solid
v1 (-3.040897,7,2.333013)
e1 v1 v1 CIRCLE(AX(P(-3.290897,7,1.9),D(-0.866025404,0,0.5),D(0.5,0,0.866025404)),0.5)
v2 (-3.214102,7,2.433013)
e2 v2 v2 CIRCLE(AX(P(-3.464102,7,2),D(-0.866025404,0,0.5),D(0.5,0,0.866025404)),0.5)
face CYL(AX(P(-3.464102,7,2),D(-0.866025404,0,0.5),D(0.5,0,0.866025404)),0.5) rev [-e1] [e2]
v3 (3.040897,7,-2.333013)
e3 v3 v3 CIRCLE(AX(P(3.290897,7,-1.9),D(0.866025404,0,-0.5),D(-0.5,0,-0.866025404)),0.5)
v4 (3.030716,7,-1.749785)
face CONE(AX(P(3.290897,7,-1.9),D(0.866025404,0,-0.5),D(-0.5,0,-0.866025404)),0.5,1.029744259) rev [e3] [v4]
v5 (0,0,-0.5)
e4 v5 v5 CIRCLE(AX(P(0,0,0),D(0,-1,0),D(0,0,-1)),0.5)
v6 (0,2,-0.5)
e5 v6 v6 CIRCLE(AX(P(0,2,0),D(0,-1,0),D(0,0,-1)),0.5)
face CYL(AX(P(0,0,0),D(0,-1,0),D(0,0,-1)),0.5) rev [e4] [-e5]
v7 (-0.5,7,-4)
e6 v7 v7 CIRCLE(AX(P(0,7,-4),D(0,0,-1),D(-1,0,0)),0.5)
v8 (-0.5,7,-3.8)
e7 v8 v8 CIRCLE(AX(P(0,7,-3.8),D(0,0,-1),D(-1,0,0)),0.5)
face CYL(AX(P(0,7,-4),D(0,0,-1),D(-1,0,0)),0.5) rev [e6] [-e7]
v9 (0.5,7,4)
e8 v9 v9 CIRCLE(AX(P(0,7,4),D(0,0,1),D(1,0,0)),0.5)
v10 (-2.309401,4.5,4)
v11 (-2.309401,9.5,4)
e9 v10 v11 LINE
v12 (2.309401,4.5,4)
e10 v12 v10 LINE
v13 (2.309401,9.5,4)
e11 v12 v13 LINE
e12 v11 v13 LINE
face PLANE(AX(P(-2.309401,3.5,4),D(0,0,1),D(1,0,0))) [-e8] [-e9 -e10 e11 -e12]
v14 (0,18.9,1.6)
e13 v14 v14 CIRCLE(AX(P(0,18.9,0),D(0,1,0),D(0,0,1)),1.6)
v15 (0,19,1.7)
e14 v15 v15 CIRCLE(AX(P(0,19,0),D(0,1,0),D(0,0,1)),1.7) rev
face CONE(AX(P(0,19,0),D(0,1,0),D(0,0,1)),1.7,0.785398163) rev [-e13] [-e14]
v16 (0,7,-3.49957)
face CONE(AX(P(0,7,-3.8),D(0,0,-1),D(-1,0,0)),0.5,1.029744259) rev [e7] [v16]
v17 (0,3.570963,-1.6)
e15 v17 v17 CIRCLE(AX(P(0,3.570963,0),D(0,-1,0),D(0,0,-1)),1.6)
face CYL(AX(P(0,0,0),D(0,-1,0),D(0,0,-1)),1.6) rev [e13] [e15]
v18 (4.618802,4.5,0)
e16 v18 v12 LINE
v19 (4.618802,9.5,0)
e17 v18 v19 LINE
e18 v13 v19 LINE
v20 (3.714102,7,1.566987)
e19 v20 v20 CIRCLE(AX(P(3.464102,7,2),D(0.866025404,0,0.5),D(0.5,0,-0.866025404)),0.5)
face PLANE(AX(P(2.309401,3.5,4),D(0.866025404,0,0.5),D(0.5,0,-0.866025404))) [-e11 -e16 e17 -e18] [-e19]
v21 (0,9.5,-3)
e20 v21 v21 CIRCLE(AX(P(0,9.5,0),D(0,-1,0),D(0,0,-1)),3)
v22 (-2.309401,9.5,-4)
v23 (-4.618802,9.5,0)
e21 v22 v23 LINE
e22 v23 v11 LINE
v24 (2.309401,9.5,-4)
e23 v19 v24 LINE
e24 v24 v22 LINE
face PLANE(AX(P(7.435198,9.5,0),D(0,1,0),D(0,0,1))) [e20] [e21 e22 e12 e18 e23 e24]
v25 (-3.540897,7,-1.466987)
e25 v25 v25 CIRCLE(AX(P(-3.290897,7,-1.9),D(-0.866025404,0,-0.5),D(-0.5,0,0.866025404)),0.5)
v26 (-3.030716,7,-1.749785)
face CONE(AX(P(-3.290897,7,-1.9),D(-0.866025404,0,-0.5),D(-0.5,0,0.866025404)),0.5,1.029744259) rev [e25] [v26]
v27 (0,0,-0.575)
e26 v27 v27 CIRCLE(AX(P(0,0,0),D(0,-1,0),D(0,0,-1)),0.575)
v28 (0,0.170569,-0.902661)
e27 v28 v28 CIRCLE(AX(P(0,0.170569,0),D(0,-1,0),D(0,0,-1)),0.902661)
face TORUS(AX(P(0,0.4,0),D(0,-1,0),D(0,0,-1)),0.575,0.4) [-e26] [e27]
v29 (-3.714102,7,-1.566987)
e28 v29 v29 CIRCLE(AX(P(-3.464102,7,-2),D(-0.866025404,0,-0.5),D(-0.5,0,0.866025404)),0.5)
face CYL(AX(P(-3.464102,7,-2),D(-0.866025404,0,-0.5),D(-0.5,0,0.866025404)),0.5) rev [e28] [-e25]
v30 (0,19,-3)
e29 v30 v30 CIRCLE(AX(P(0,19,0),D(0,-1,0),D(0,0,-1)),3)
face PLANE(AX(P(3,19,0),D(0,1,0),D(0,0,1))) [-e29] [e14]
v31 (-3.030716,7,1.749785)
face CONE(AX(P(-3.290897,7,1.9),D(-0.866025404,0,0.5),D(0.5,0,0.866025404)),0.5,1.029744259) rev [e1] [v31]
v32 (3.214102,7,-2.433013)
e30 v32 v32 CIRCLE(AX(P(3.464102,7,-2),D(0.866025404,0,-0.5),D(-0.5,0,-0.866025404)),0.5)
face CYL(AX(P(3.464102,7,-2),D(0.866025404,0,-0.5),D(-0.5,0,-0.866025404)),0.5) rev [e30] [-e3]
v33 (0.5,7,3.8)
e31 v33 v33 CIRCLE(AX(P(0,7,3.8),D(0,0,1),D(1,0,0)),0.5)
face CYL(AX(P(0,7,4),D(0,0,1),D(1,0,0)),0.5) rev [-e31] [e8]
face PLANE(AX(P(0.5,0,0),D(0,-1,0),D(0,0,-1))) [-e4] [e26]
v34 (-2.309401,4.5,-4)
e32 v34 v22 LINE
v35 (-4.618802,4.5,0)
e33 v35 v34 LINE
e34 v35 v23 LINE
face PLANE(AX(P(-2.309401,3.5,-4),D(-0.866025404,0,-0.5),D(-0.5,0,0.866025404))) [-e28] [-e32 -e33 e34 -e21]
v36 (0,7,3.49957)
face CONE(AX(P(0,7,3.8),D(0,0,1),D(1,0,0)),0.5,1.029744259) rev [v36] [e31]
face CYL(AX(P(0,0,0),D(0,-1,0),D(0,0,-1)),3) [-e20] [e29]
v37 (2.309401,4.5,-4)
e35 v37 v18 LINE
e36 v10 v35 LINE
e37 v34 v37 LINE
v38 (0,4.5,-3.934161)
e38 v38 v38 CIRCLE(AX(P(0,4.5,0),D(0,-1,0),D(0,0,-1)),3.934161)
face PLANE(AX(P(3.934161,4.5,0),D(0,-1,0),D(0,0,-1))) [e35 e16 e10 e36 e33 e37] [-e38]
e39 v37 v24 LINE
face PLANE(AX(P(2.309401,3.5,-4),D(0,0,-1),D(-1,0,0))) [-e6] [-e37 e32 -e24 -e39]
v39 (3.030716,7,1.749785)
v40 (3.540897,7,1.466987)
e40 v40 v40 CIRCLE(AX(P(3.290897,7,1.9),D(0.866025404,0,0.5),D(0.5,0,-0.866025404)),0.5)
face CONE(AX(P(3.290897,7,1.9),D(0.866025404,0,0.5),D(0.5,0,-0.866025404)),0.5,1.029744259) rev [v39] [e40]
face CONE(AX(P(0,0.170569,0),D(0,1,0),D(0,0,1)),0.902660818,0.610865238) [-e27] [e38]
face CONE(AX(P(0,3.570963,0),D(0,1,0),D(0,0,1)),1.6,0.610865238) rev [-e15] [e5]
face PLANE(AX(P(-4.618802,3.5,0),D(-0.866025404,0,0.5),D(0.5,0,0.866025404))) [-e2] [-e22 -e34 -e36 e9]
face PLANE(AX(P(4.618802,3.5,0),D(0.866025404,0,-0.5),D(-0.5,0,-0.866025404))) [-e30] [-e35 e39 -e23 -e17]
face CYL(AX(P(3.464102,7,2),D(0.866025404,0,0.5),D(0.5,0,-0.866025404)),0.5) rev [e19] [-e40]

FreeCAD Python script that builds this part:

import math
import FreeCAD as App
import Part
import Sketcher
from FreeCAD import Vector
Q = App.Units.Quantity


def edges_at(feature, points):
    """Names of the edges that pass closest to the given points."""
    edges = feature.Shape.Edges
    near = lambda p: min(range(len(edges)), key=lambda i: edges[i].distToShape(Part.Vertex(*p))[0])
    return sorted({f"Edge{near(p) + 1}" for p in points})

doc = App.newDocument("Part")
body = doc.addObject("PartDesign::Body", "Body")

# Sketch on XY plane
sketch1 = doc.addObject("Sketcher::SketchObject", "Sketch")
body.addObject(sketch1)
sketch1.AttachmentSupport = (doc.XY_Plane, [""])
sketch1.MapMode = "FlatFace"
sketch1.addGeometry([
    Part.LineSegment(Vector(0.5, 0, 0), Vector(0.575, 0, 0)),  # 0
    Part.ArcOfCircle(Part.Circle(Vector(0.575, 0.4, 0), Vector(0, 0, 1), 0.4), math.radians(-90), math.radians(-35)),  # 1
    Part.LineSegment(Vector(0.902661, 0.170569, 0), Vector(3.934161, 4.5, 0)),  # 2
    Part.LineSegment(Vector(3.934161, 4.5, 0), Vector(6.640586, 4.5, 0)),  # 3
    Part.LineSegment(Vector(6.640586, 4.5, 0), Vector(6.640586, 8.365176, 0)),  # 4
    Part.LineSegment(Vector(6.640586, 8.365176, 0), Vector(7.435198, 9.5, 0)),  # 5
    Part.LineSegment(Vector(7.435198, 9.5, 0), Vector(3, 9.5, 0)),  # 6
    Part.LineSegment(Vector(3, 9.5, 0), Vector(3, 19, 0)),  # 7
    Part.LineSegment(Vector(3, 19, 0), Vector(1.6, 19, 0)),  # 8
    Part.LineSegment(Vector(1.6, 19, 0), Vector(1.6, 3.570963, 0)),  # 9
    Part.LineSegment(Vector(1.6, 3.570963, 0), Vector(0.5, 2, 0)),  # 10
    Part.LineSegment(Vector(0.5, 2, 0), Vector(0.5, 0, 0)),  # 11
], False)
sketch1.addConstraint([
    Sketcher.Constraint("Tangent", 0, 2, 1, 1),
    Sketcher.Constraint("Tangent", 1, 2, 2, 1),
    Sketcher.Constraint("Coincident", 2, 2, 3, 1),
    Sketcher.Constraint("Coincident", 3, 2, 4, 1),
    Sketcher.Constraint("Coincident", 4, 2, 5, 1),
    Sketcher.Constraint("Coincident", 5, 2, 6, 1),
    Sketcher.Constraint("Coincident", 6, 2, 7, 1),
    Sketcher.Constraint("Coincident", 7, 2, 8, 1),
    Sketcher.Constraint("Coincident", 8, 2, 9, 1),
    Sketcher.Constraint("Coincident", 9, 2, 10, 1),
    Sketcher.Constraint("Coincident", 10, 2, 11, 1),
    Sketcher.Constraint("Coincident", 11, 2, 0, 1),
    Sketcher.Constraint("Horizontal", 0),
    Sketcher.Constraint("Horizontal", 3),
    Sketcher.Constraint("Vertical", 4),
    Sketcher.Constraint("Horizontal", 6),
    Sketcher.Constraint("Vertical", 7),
    Sketcher.Constraint("Horizontal", 8),
    Sketcher.Constraint("Vertical", 9),
    Sketcher.Constraint("Vertical", 11),
    Sketcher.Constraint("PointOnObject", 0, 2, -1),
    Sketcher.Constraint("Parallel", 2, 5),
    Sketcher.Constraint("Parallel", 5, 10),
    Sketcher.Constraint("Radius", 1, Q("0.4 mm")),
    Sketcher.Constraint("DistanceY", 11, 2, 11, 1, Q("2 mm")),
    Sketcher.Constraint("Angle", 2, Q("55 deg")),
    Sketcher.Constraint("DistanceX", 8, 2, 8, 1, Q("1.4 mm")),
    Sketcher.Constraint("DistanceY", 7, 1, 7, 2, Q("9.5 mm")),
    Sketcher.Constraint("DistanceX", -1, 1, 6, 2, Q("3 mm")),
    Sketcher.Constraint("DistanceY", -1, 1, 7, 2, Q("19 mm")),
    Sketcher.Constraint("DistanceY", 3, 2, 5, 2, Q("5 mm")),
    Sketcher.Constraint("DistanceX", -1, 1, 10, 2, Q("0.5 mm")),
    Sketcher.Constraint("DistanceX", 0, 1, 0, 2, Q("0.075 mm")),
    Sketcher.Constraint("DistanceX", 6, 2, 6, 1, Q("4.435198 mm")),
    Sketcher.Constraint("DistanceX", 3, 1, 3, 2, Q("2.706426 mm")),
])
revolution = doc.addObject("PartDesign::Revolution", "Revolution")
body.addObject(revolution)
revolution.Profile = sketch1
revolution.ReferenceAxis = (sketch1, ["V_Axis"])
revolution.Angle = 360

# Sketch on XZ plane
sketch2 = doc.addObject("Sketcher::SketchObject", "Sketch001")
body.addObject(sketch2)
sketch2.AttachmentSupport = (doc.XZ_Plane, [""])
sketch2.MapMode = "FlatFace"
sketch2.AttachmentOffset = App.Placement(Vector(0, 0, -10.5), App.Rotation())
sketch2.addGeometry([
    Part.Circle(Vector(0, 0, 0), Vector(0, 0, 1), 7.435198),  # 0
    Part.LineSegment(Vector(-2.309401, -4, 0), Vector(2.309401, -4, 0)),  # 1
    Part.LineSegment(Vector(2.309401, -4, 0), Vector(4.618802, 0, 0)),  # 2
    Part.LineSegment(Vector(4.618802, 0, 0), Vector(2.309401, 4, 0)),  # 3
    Part.LineSegment(Vector(2.309401, 4, 0), Vector(-2.309401, 4, 0)),  # 4
    Part.LineSegment(Vector(-2.309401, 4, 0), Vector(-4.618802, 0, 0)),  # 5
    Part.LineSegment(Vector(-4.618802, 0, 0), Vector(-2.309401, -4, 0)),  # 6
], False)
sketch2.addConstraint([
    Sketcher.Constraint("Coincident", 1, 2, 2, 1),
    Sketcher.Constraint("Coincident", 2, 2, 3, 1),
    Sketcher.Constraint("Coincident", 3, 2, 4, 1),
    Sketcher.Constraint("Coincident", 4, 2, 5, 1),
    Sketcher.Constraint("Coincident", 5, 2, 6, 1),
    Sketcher.Constraint("Coincident", 6, 2, 1, 1),
    Sketcher.Constraint("Horizontal", 1),
    Sketcher.Constraint("Horizontal", 4),
    Sketcher.Constraint("Coincident", 0, 3, -1, 1),
    Sketcher.Constraint("Symmetric", 1, 2, 4, 2, -1, 1),
    Sketcher.Constraint("Symmetric", 2, 2, 5, 2, -1, 1),
    Sketcher.Constraint("PointOnObject", 2, 2, -1),
    Sketcher.Constraint("Parallel", 3, 6),
    Sketcher.Constraint("Vertical", 1, 2, 3, 2),
    Sketcher.Constraint("Angle", 2, Q("60 deg")),
    Sketcher.Constraint("DistanceY", 1, 2, -1, 1, Q("4 mm")),
    Sketcher.Constraint("Diameter", 0, Q("14.870397 mm")),
    Sketcher.Constraint("DistanceX", -1, 1, 1, 2, Q("2.309401 mm")),
])
pocket1 = doc.addObject("PartDesign::Pocket", "Pocket")
body.addObject(pocket1)
pocket1.Profile = sketch2
pocket1.Length = 7
pocket1.Reversed = True
doc.recompute()

chamfer = doc.addObject("PartDesign::Chamfer", "Chamfer")
body.addObject(chamfer)
chamfer.Base = (pocket1, edges_at(pocket1, [(-1.6, 19, 0)]))
chamfer.Size = 0.1

# Sketch on XY plane
sketch3 = doc.addObject("Sketcher::SketchObject", "Sketch002")
body.addObject(sketch3)
sketch3.AttachmentSupport = (doc.XY_Plane, [""])
sketch3.MapMode = "FlatFace"
sketch3.AttachmentOffset = App.Placement(Vector(0, 0, 4), App.Rotation())
sketch3.addGeometry(Part.Circle(Vector(0, 7, 0), Vector(0, 0, 1), 0.5), False)
sketch3.addConstraint([
    Sketcher.Constraint("PointOnObject", 0, 3, -2),
    Sketcher.Constraint("Diameter", 0, Q("1 mm")),
    Sketcher.Constraint("DistanceY", -1, 1, 0, 3, Q("7 mm")),
])
doc.recompute()
hole = doc.addObject("PartDesign::Hole", "Hole")
body.addObject(hole)
hole.Profile = sketch3
hole.ThreadType = "None"
hole.Diameter = 1
hole.DepthType = "Dimension"
hole.Depth = 0.2
hole.DrillPoint = "Angled"
hole.DrillPointAngle = 118

# Sketch on an angled plane
sketch4 = doc.addObject("Sketcher::SketchObject", "Sketch003")
body.addObject(sketch4)
sketch4.Placement = App.Placement(Vector(3.464101, 0, 2.000001), App.Rotation(Vector(-0.500000175, 0, 0.866025303), Vector(0, -1, 0), Vector(0.866025303, 0, 0.500000175), "ZXY"))
sketch4.addGeometry(Part.Circle(Vector(-0.000001, -7, 0), Vector(0, 0, 1), 0.5), False)
sketch4.addConstraint([
    Sketcher.Constraint("PointOnObject", 0, 3, -2),
    Sketcher.Constraint("Diameter", 0, Q("1 mm")),
    Sketcher.Constraint("DistanceY", 0, 3, -1, 1, Q("7 mm")),
])
doc.recompute()
hole2 = doc.addObject("PartDesign::Hole", "Hole001")
body.addObject(hole2)
hole2.Profile = sketch4
hole2.ThreadType = "None"
hole2.Diameter = 1
hole2.DepthType = "Dimension"
hole2.Depth = 0.2
hole2.DrillPoint = "Angled"
hole2.DrillPointAngle = 118

# Sketch on an angled plane
sketch5 = doc.addObject("Sketcher::SketchObject", "Sketch004")
body.addObject(sketch5)
sketch5.Placement = App.Placement(Vector(3.464101, 0, -2.000001), App.Rotation(Vector(0.500000175, 0, 0.866025303), Vector(0, -1, 0), Vector(0.866025303, 0, -0.500000175), "ZXY"))
sketch5.addGeometry(Part.Circle(Vector(0.000001, -7, 0), Vector(0, 0, 1), 0.5), False)
sketch5.addConstraint([
    Sketcher.Constraint("PointOnObject", 0, 3, -2),
    Sketcher.Constraint("Diameter", 0, Q("1 mm")),
    Sketcher.Constraint("DistanceY", 0, 3, -1, 1, Q("7 mm")),
])
doc.recompute()
hole3 = doc.addObject("PartDesign::Hole", "Hole002")
body.addObject(hole3)
hole3.Profile = sketch5
hole3.ThreadType = "None"
hole3.Diameter = 1
hole3.DepthType = "Dimension"
hole3.Depth = 0.2
hole3.DrillPoint = "Angled"
hole3.DrillPointAngle = 118

# Sketch on XY plane
sketch6 = doc.addObject("Sketcher::SketchObject", "Sketch005")
body.addObject(sketch6)
sketch6.AttachmentSupport = (doc.XY_Plane, [""])
sketch6.MapMode = "FlatFace"
sketch6.AttachmentOffset = App.Placement(Vector(0, 0, -4), App.Rotation())
sketch6.addGeometry(Part.Circle(Vector(0, 7, 0), Vector(0, 0, 1), 0.5), False)
sketch6.addConstraint([
    Sketcher.Constraint("PointOnObject", 0, 3, -2),
    Sketcher.Constraint("Diameter", 0, Q("1 mm")),
    Sketcher.Constraint("DistanceY", -1, 1, 0, 3, Q("7 mm")),
])
doc.recompute()
hole4 = doc.addObject("PartDesign::Hole", "Hole003")
body.addObject(hole4)
hole4.Profile = sketch6
hole4.ThreadType = "None"
hole4.Diameter = 1
hole4.DepthType = "Dimension"
hole4.Depth = 0.2
hole4.DrillPoint = "Angled"
hole4.DrillPointAngle = 118
hole4.Reversed = True

# Sketch on an angled plane
sketch7 = doc.addObject("Sketcher::SketchObject", "Sketch006")
body.addObject(sketch7)
sketch7.Placement = App.Placement(Vector(-3.464101, 0, -2.000001), App.Rotation(Vector(0.500000175, 0, -0.866025303), Vector(0, -1, 0), Vector(-0.866025303, 0, -0.500000175), "ZXY"))
sketch7.addGeometry(Part.Circle(Vector(-0.000001, -7, 0), Vector(0, 0, 1), 0.5), False)
sketch7.addConstraint([
    Sketcher.Constraint("PointOnObject", 0, 3, -2),
    Sketcher.Constraint("Diameter", 0, Q("1 mm")),
    Sketcher.Constraint("DistanceY", 0, 3, -1, 1, Q("7 mm")),
])
doc.recompute()
hole5 = doc.addObject("PartDesign::Hole", "Hole004")
body.addObject(hole5)
hole5.Profile = sketch7
hole5.ThreadType = "None"
hole5.Diameter = 1
hole5.DepthType = "Dimension"
hole5.Depth = 0.2
hole5.DrillPoint = "Angled"
hole5.DrillPointAngle = 118

# Sketch on an angled plane
sketch8 = doc.addObject("Sketcher::SketchObject", "Sketch007")
body.addObject(sketch8)
sketch8.Placement = App.Placement(Vector(-3.464101, 0, 2.000001), App.Rotation(Vector(-0.500000175, 0, -0.866025303), Vector(0, -1, 0), Vector(-0.866025303, 0, 0.500000175), "ZXY"))
sketch8.addGeometry(Part.Circle(Vector(0.000001, -7, 0), Vector(0, 0, 1), 0.5), False)
sketch8.addConstraint([
    Sketcher.Constraint("PointOnObject", 0, 3, -2),
    Sketcher.Constraint("Diameter", 0, Q("1 mm")),
    Sketcher.Constraint("DistanceY", 0, 3, -1, 1, Q("7 mm")),
])
doc.recompute()
hole6 = doc.addObject("PartDesign::Hole", "Hole005")
body.addObject(hole6)
hole6.Profile = sketch8
hole6.ThreadType = "None"
hole6.Diameter = 1
hole6.DepthType = "Dimension"
hole6.Depth = 0.2
hole6.DrillPoint = "Angled"
hole6.DrillPointAngle = 118

doc.recompute()
